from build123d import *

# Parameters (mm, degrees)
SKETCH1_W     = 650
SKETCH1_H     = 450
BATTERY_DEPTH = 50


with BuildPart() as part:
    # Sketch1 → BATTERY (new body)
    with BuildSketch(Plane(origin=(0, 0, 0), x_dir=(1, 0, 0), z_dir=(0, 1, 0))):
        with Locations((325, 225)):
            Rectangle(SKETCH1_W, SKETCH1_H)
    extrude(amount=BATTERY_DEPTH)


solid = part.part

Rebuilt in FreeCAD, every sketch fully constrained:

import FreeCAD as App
import Part
import Sketcher

V = App.Vector
Q = App.Units.Quantity


def add_polygon(sketch, points):
    """Adds a closed chain of lines whose ends are joined by coincident constraints."""
    first, n = sketch.GeometryCount, len(points)
    for a, b in zip(points, points[1:] + points[:1]):
        sketch.addGeometry(Part.LineSegment(App.Vector(*a, 0), App.Vector(*b, 0)), False)
    for i in range(n):
        sketch.addConstraint(Sketcher.Constraint("Coincident", first + i, 2, first + (i + 1) % n, 1))

doc = App.newDocument("Part")
body = doc.addObject("PartDesign::Body", "Body")

# Sketch on XZ plane
sketch1 = body.newObject("Sketcher::SketchObject", "Sketch")
sketch1.AttachmentSupport = (doc.getObject("XZ_Plane"), [""])
sketch1.MapMode = "FlatFace"
add_polygon(sketch1, [(0, -450), (0, 0), (650, 0), (650, -450)])  # lines 0-3
sketch1.addConstraint([
    Sketcher.Constraint("Vertical", 0),
    Sketcher.Constraint("Horizontal", 1),
    Sketcher.Constraint("Vertical", 2),
    Sketcher.Constraint("Horizontal", 3),
    Sketcher.Constraint("Coincident", 0, 2, -1, 1),
    Sketcher.Constraint("DistanceX", 1, 1, 1, 2, Q("650 mm")),
    Sketcher.Constraint("DistanceY", 0, 1, 0, 2, Q("450 mm")),
])
pad1 = body.newObject("PartDesign::Pad", "Pad")
pad1.Profile = sketch1
pad1.Length = 50
pad1.Reversed = True

doc.recompute()
